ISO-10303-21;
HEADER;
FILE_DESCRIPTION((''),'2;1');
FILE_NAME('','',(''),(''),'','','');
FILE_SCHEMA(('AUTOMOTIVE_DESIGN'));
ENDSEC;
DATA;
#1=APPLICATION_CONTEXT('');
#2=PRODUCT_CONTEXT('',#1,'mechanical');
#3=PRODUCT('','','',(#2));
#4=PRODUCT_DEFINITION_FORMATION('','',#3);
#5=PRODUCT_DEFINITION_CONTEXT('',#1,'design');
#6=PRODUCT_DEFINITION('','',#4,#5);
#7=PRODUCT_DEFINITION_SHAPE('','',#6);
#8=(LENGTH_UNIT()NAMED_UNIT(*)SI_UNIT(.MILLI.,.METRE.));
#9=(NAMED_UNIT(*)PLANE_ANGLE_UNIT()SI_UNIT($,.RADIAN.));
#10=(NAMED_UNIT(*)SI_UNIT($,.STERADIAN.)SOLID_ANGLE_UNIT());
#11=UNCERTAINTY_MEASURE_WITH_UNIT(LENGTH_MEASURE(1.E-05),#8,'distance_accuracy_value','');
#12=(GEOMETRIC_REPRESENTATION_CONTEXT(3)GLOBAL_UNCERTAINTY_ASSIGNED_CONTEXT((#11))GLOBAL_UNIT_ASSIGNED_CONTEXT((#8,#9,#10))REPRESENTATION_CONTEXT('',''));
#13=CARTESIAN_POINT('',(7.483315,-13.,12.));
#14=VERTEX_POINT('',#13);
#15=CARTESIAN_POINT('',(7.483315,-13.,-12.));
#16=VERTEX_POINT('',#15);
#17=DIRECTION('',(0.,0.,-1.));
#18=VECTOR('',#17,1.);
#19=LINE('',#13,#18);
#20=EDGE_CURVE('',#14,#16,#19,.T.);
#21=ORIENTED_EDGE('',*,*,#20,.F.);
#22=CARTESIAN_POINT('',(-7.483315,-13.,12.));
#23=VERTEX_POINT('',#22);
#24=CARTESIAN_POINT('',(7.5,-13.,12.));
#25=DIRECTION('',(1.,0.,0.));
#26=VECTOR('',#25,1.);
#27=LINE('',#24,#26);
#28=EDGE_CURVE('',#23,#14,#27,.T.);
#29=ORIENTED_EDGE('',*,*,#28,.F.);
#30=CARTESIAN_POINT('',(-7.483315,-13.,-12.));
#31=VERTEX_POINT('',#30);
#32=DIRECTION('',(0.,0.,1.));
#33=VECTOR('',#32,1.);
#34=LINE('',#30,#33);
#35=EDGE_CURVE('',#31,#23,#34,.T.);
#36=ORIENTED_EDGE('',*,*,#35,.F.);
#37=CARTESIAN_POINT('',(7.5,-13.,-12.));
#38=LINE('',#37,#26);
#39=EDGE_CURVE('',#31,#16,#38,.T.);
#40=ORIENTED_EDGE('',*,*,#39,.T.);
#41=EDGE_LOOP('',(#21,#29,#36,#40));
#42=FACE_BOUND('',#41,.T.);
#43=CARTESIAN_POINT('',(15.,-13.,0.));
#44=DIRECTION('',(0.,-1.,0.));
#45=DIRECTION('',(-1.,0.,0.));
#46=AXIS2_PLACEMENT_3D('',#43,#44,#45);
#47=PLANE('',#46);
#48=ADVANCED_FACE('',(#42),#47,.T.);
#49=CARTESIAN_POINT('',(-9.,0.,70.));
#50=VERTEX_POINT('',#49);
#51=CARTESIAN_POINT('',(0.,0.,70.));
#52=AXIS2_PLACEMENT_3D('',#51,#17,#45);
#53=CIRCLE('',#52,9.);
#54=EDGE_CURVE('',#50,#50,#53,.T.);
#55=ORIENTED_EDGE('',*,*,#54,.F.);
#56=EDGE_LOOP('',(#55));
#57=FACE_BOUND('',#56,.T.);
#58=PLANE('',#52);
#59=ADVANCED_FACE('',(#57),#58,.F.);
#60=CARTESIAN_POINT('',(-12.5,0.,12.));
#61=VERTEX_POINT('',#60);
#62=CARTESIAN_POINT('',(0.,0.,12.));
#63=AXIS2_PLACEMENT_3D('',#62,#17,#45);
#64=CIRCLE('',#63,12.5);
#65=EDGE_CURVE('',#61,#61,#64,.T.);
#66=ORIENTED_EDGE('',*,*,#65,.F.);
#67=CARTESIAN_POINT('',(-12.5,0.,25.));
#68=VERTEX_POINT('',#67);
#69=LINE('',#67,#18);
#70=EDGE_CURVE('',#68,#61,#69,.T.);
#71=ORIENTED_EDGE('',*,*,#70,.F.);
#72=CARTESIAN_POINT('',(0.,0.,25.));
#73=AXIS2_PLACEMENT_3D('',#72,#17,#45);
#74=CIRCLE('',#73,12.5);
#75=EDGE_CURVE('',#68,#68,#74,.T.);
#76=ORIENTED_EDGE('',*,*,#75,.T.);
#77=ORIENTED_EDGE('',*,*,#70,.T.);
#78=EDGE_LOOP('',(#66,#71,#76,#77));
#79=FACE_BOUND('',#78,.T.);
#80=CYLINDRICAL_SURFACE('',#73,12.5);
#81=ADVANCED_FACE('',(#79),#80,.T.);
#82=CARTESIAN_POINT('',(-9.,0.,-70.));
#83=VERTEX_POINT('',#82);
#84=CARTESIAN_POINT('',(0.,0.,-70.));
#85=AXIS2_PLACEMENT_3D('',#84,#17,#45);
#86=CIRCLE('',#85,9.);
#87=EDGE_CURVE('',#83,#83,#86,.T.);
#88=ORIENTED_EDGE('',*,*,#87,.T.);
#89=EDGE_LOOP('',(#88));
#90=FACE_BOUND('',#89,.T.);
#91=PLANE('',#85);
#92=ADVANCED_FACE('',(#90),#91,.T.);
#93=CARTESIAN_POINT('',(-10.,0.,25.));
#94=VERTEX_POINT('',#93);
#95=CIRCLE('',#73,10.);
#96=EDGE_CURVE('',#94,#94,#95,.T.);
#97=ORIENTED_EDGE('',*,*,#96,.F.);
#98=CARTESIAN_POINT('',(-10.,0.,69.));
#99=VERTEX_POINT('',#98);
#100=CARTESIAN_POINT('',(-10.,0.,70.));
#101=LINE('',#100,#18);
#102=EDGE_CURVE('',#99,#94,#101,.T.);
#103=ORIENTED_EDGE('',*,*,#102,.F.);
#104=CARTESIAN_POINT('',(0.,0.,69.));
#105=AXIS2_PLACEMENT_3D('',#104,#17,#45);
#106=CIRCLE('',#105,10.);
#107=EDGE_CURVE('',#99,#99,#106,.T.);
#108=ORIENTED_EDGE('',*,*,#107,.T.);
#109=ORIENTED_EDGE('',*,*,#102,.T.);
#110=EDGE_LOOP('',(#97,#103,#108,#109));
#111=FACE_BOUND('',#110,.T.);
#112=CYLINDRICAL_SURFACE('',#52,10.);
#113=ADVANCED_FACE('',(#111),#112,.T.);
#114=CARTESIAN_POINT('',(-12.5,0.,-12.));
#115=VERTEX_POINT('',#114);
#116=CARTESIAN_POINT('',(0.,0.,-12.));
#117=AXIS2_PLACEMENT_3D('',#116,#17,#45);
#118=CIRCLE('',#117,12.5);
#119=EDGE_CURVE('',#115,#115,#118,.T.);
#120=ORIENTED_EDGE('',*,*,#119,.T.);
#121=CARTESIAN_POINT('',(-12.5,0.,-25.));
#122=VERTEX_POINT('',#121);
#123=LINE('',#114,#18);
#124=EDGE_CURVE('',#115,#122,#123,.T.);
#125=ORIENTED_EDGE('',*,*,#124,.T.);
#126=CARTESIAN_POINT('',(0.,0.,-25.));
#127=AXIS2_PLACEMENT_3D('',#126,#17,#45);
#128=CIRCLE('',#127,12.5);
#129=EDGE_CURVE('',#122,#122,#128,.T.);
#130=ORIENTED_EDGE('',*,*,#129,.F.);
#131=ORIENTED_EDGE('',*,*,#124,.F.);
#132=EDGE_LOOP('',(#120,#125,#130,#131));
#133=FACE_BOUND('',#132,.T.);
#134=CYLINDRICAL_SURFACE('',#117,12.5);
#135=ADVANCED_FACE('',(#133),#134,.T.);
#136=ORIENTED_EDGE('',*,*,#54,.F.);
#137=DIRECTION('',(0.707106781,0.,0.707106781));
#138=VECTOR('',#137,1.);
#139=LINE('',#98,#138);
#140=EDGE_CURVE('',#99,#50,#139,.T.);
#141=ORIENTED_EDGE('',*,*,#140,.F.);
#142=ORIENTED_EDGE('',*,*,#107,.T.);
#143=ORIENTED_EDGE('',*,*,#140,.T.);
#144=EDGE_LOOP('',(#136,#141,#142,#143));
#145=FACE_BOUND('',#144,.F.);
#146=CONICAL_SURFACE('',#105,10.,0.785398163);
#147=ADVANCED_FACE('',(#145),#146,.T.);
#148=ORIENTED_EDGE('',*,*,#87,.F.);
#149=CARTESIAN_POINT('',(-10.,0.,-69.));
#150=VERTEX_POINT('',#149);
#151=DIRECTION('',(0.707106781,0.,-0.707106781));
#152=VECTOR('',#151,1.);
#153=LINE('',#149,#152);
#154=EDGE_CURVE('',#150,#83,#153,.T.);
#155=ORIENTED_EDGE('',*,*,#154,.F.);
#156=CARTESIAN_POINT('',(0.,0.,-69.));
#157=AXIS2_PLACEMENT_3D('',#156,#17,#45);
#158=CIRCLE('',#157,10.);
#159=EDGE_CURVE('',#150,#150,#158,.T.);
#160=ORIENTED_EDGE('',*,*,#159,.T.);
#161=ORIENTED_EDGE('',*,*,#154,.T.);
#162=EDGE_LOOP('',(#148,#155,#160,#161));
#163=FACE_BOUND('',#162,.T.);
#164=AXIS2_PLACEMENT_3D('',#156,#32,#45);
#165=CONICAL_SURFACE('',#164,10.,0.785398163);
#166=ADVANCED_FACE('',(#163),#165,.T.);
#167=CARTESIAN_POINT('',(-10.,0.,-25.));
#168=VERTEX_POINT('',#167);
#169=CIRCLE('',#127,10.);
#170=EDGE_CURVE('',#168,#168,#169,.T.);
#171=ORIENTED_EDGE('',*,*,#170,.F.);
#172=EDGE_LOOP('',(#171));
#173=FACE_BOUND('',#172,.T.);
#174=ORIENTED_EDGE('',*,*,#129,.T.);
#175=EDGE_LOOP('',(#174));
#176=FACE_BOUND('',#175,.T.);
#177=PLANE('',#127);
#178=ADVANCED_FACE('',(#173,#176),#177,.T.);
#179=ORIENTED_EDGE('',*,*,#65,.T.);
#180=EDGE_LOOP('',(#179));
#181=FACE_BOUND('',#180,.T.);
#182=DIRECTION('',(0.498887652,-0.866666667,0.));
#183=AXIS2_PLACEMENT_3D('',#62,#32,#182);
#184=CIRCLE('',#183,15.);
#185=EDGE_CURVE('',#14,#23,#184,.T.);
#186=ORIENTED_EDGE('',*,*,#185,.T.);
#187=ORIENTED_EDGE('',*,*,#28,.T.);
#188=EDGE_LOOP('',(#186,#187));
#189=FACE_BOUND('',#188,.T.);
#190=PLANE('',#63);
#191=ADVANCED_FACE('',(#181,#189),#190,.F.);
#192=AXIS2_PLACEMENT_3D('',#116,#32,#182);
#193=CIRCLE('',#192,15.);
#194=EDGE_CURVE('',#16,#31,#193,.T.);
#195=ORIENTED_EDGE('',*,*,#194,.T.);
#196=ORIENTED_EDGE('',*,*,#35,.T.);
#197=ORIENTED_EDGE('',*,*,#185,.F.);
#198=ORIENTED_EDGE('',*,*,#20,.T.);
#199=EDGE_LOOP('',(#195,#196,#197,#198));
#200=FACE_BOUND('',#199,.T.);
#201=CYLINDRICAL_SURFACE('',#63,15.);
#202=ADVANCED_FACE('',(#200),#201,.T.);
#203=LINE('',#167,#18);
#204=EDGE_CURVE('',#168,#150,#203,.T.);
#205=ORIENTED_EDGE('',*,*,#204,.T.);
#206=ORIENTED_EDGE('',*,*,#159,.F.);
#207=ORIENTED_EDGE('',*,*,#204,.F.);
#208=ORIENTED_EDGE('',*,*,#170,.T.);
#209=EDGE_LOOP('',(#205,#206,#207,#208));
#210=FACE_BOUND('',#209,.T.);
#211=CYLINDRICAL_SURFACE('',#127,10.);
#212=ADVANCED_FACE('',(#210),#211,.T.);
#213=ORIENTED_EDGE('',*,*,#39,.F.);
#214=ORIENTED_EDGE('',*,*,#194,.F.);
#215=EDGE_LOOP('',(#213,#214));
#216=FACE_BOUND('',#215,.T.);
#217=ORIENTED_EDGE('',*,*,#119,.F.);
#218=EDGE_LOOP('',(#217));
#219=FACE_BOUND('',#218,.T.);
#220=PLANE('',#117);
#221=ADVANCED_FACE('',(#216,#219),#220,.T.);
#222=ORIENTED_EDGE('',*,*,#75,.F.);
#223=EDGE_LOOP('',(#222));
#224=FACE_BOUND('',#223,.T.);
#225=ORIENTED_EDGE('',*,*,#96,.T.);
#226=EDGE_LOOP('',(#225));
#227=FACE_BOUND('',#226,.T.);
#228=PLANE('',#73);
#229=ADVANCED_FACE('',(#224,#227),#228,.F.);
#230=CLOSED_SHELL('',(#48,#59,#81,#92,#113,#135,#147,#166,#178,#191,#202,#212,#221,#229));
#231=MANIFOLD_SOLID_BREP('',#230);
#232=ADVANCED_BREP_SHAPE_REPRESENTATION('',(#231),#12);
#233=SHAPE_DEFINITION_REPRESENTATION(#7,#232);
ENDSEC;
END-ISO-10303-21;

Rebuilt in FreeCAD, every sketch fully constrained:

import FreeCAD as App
import Part
import Sketcher
Q = App.Units.Quantity


def edges_at(feature, points):
    """Names of the edges that pass closest to the given points."""
    edges = feature.Shape.Edges
    near = lambda p: min(range(len(edges)), key=lambda i: edges[i].distToShape(Part.Vertex(*p))[0])
    return sorted({f"Edge{near(p) + 1}" for p in points})


def add_polygon(sketch, points):
    """Adds a closed chain of lines whose ends are joined by coincident constraints."""
    first, n = sketch.GeometryCount, len(points)
    for a, b in zip(points, points[1:] + points[:1]):
        sketch.addGeometry(Part.LineSegment(App.Vector(*a, 0), App.Vector(*b, 0)), False)
    for i in range(n):
        sketch.addConstraint(Sketcher.Constraint("Coincident", first + i, 2, first + (i + 1) % n, 1))

doc = App.newDocument("Part")
body = doc.addObject("PartDesign::Body", "Body")

# Sketch on XZ plane
sketch1 = body.newObject("Sketcher::SketchObject", "Sketch")
sketch1.AttachmentSupport = (doc.getObject("XZ_Plane"), [""])
sketch1.MapMode = "FlatFace"
add_polygon(sketch1, [(-12.5, 12), (-15, 12), (-15, -12), (-12.5, -12), (-12.5, -25), (-10, -25), (-10, -70), (0, -70), (0, 70), (-10, 70), (-10, 25), (-12.5, 25)])  # lines 0-11
sketch1.addConstraint([
    Sketcher.Constraint("Horizontal", 0),
    Sketcher.Constraint("Vertical", 1),
    Sketcher.Constraint("Horizontal", 2),
    Sketcher.Constraint("Vertical", 3),
    Sketcher.Constraint("Horizontal", 4),
    Sketcher.Constraint("Vertical", 5),
    Sketcher.Constraint("Horizontal", 6),
    Sketcher.Constraint("Vertical", 7),
    Sketcher.Constraint("Horizontal", 8),
    Sketcher.Constraint("Vertical", 9),
    Sketcher.Constraint("Horizontal", 10),
    Sketcher.Constraint("Vertical", 11),
    Sketcher.Constraint("Symmetric", 6, 2, 7, 2, -1, 1),
    Sketcher.Constraint("Symmetric", 4, 2, 9, 2, -1),
    Sketcher.Constraint("Symmetric", 2, 2, 11, 2, -1),
    Sketcher.Constraint("Equal", 2, 4),
    Sketcher.Constraint("DistanceX", 6, 1, 6, 2, Q("10 mm")),
    Sketcher.Constraint("DistanceY", 1, 2, 1, 1, Q("24 mm")),
    Sketcher.Constraint("DistanceY", 3, 2, 3, 1, Q("13 mm")),
    Sketcher.Constraint("DistanceY", 5, 2, 5, 1, Q("45 mm")),
    Sketcher.Constraint("DistanceX", 0, 2, 0, 1, Q("2.5 mm")),
])
revolution = body.newObject("PartDesign::Revolution", "Revolution")
revolution.Profile = sketch1
revolution.ReferenceAxis = (sketch1, ["V_Axis"])
revolution.Angle = 360

# Sketch on XY plane
sketch2 = body.newObject("Sketcher::SketchObject", "Sketch001")
sketch2.AttachmentSupport = (doc.getObject("XY_Plane"), [""])
sketch2.MapMode = "FlatFace"
add_polygon(sketch2, [(-15, -13), (-15, -17), (15, -17), (15, -13)])  # lines 0-3
sketch2.addConstraint([
    Sketcher.Constraint("Vertical", 0),
    Sketcher.Constraint("Horizontal", 1),
    Sketcher.Constraint("Vertical", 2),
    Sketcher.Constraint("Horizontal", 3),
    Sketcher.Constraint("DistanceX", 1, 1, 1, 2, Q("30 mm")),
    Sketcher.Constraint("DistanceY", 0, 2, 0, 1, Q("4 mm")),
    Sketcher.Constraint("DistanceX", 0, 2, -1, 1, Q("15 mm")),
    Sketcher.Constraint("DistanceY", 0, 2, -1, 1, Q("17 mm")),
])
pocket1 = body.newObject("PartDesign::Pocket", "Pocket")
pocket1.Profile = sketch2
pocket1.Type = "ThroughAll"
pocket1.Midplane = True
doc.recompute()

chamfer = body.newObject("PartDesign::Chamfer", "Chamfer")
chamfer.Base = (pocket1, edges_at(pocket1, [(10, 0, 70), (10, 0, -70)]))
chamfer.Size = 1

doc.recompute()
